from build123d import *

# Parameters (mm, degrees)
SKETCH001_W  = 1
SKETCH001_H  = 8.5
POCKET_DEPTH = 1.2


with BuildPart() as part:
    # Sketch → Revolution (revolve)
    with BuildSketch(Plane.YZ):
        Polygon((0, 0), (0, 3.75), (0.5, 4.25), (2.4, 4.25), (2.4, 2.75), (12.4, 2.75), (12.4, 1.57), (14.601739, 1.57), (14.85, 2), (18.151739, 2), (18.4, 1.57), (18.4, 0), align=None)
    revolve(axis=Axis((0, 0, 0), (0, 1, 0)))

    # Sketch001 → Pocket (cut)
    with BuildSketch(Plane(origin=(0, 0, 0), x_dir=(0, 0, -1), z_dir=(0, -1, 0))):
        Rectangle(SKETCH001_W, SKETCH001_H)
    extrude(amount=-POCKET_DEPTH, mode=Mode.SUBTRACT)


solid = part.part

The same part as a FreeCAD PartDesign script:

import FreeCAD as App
import Part
import Sketcher

V = App.Vector
Q = App.Units.Quantity


def add_polygon(sketch, points):
    """Adds a closed chain of lines whose ends are joined by coincident constraints."""
    first, n = sketch.GeometryCount, len(points)
    for a, b in zip(points, points[1:] + points[:1]):
        sketch.addGeometry(Part.LineSegment(App.Vector(*a, 0), App.Vector(*b, 0)), False)
    for i in range(n):
        sketch.addConstraint(Sketcher.Constraint("Coincident", first + i, 2, first + (i + 1) % n, 1))

doc = App.newDocument("Part")
body = doc.addObject("PartDesign::Body", "Body")

sketch1 = body.newObject("Sketcher::SketchObject", "Sketch")
sketch1.AttachmentSupport = (doc.getObject("YZ_Plane"), [""])
sketch1.MapMode = "FlatFace"
add_polygon(sketch1, [(0, 3.75), (0, 0), (18.4, 0), (18.4, 1.57), (18.15, 2), (14.85, 2), (14.6, 1.57), (12.4, 1.57), (12.4, 2.75), (2.4, 2.75), (2.4, 4.25), (0.5, 4.25)])
sketch1.addConstraint([
    Sketcher.Constraint("Vertical", 0),
    Sketcher.Constraint("Horizontal", 1),
    Sketcher.Constraint("Vertical", 2),
    Sketcher.Constraint("Horizontal", 4),
    Sketcher.Constraint("Horizontal", 6),
    Sketcher.Constraint("Vertical", 7),
    Sketcher.Constraint("Horizontal", 8),
    Sketcher.Constraint("Vertical", 9),
    Sketcher.Constraint("Horizontal", 10),
    Sketcher.Constraint("Coincident", 0, 2, -1, 1),
    Sketcher.Constraint("Horizontal", 2, 2, 5, 2),
    Sketcher.Constraint("Equal", 3, 5),
    Sketcher.Constraint("DistanceX", 8, 2, 8, 1, Q("10 mm")),
    Sketcher.Constraint("Angle", 11, Q("-135 deg")),
    Sketcher.Constraint("DistanceX", 1, 1, 1, 2, Q("18.4 mm")),
    Sketcher.Constraint("DistanceX", 10, 2, 10, 1, Q("1.9 mm")),
    Sketcher.Constraint("DistanceY", 9, 1, 9, 2, Q("1.5 mm")),
    Sketcher.Constraint("DistanceY", -1, 1, 3, 2, Q("2 mm")),
    Sketcher.Constraint("DistanceX", 6, 2, 2, 2, Q("6 mm")),
    Sketcher.Constraint("DistanceY", 0, 2, 0, 1, Q("3.75 mm")),
    Sketcher.Constraint("DistanceY", 2, 1, 2, 2, Q("1.57 mm")),
    Sketcher.Constraint("DistanceX", -1, 1, 4, 2, Q("14.85 mm")),
    Sketcher.Constraint("DistanceX", 4, 2, 4, 1, Q("3.301739 mm")),
])
revolution = body.newObject("PartDesign::Revolution", "Revolution")
revolution.Profile = sketch1
revolution.ReferenceAxis = (sketch1, ["H_Axis"])
revolution.Angle = 360

sketch2 = body.newObject("Sketcher::SketchObject", "Sketch001")
sketch2.AttachmentSupport = (doc.getObject("XZ_Plane"), [""])
sketch2.MapMode = "FlatFace"
add_polygon(sketch2, [(4.2, 0.5), (-4.2, 0.5), (-4.2, -0.5), (4.2, -0.5)])
sketch2.addConstraint([
    Sketcher.Constraint("Horizontal", 0),
    Sketcher.Constraint("Vertical", 1),
    Sketcher.Constraint("Horizontal", 2),
    Sketcher.Constraint("Vertical", 3),
    Sketcher.Constraint("Symmetric", 0, 2, 2, 2, -1, 1),
    Sketcher.Constraint("DistanceY", 1, 2, 1, 1, Q("1 mm")),
    Sketcher.Constraint("DistanceX", 0, 2, 0, 1, Q("8.5 mm")),
])
pocket1 = body.newObject("PartDesign::Pocket", "Pocket")
pocket1.Profile = sketch2
pocket1.Length = 1.2

doc.recompute()
